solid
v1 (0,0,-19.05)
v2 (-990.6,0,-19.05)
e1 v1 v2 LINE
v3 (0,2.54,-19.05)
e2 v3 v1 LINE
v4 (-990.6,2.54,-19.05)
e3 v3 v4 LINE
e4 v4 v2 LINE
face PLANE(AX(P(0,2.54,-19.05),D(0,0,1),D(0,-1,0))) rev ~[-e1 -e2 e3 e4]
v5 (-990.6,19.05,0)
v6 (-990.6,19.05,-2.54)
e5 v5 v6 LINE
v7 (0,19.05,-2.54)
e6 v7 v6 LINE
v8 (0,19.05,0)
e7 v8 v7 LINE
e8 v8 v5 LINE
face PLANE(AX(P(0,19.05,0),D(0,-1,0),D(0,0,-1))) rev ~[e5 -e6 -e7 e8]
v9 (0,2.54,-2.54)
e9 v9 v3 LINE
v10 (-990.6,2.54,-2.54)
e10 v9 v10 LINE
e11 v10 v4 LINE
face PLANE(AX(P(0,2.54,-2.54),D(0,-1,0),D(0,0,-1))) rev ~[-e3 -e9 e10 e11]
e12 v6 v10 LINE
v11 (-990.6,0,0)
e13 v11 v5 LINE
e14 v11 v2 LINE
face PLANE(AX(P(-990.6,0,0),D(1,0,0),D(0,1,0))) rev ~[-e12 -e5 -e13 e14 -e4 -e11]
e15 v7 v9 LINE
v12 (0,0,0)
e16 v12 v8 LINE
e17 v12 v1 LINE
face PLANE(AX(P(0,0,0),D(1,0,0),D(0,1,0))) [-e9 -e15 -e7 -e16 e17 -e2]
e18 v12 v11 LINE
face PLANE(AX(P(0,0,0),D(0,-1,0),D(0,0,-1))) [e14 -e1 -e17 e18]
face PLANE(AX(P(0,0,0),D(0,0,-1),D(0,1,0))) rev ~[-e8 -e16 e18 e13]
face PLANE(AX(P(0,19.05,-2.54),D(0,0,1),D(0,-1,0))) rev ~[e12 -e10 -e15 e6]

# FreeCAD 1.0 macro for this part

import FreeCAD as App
import Part
import Sketcher
from FreeCAD import Vector
Q = App.Units.Quantity


def add_polygon(sketch, points):
    """Adds a closed chain of lines whose ends are joined by coincident constraints."""
    first, n = sketch.GeometryCount, len(points)
    for a, b in zip(points, points[1:] + points[:1]):
        sketch.addGeometry(Part.LineSegment(App.Vector(*a, 0), App.Vector(*b, 0)), False)
    for i in range(n):
        sketch.addConstraint(Sketcher.Constraint("Coincident", first + i, 2, first + (i + 1) % n, 1))

doc = App.newDocument("Part")
params = doc.addObject("Spreadsheet::Sheet", "Params")
for row, (alias, value) in enumerate([
    ("sketch1_width", "0.1 in"),
    ("sketch1_width2", "0.75 in"),
    ("pad1_length", "39 in"),
], start=1):
    params.set(f"A{row}", alias)
    params.set(f"B{row}", "=" + value)
    params.setAlias(f"B{row}", alias)

body = doc.addObject("PartDesign::Body", "Body")

# Sketch on YZ plane
sketch1 = body.newObject("Sketcher::SketchObject", "Sketch")
sketch1.AttachmentSupport = (doc.getObject("YZ_Plane"), [""])
sketch1.MapMode = "FlatFace"
add_polygon(sketch1, [(19.1, 0), (0, 0), (0, -19.1), (2.5, -19.1), (2.5, -2.5), (19.1, -2.5)])  # lines 0-5
sketch1.addConstraint(Sketcher.Constraint("Horizontal", 0))
sketch1.addConstraint(Sketcher.Constraint("Vertical", 1))
sketch1.addConstraint(Sketcher.Constraint("Horizontal", 2))
sketch1.addConstraint(Sketcher.Constraint("Vertical", 3))
sketch1.addConstraint(Sketcher.Constraint("Horizontal", 4))
sketch1.addConstraint(Sketcher.Constraint("Vertical", 5))
sketch1.addConstraint(Sketcher.Constraint("Coincident", 0, 2, -1, 1))
sketch1.addConstraint(Sketcher.Constraint("Equal", 0, 1))
sketch1.addConstraint(Sketcher.Constraint("Equal", 4, 3))
sketch1.addConstraint(Sketcher.Constraint("DistanceX", 2, 1, 2, 2, Q("0.1 in")))
sketch1.addConstraint(Sketcher.Constraint("DistanceX", 0, 2, 0, 1, Q("0.75 in")))
sketch1.setExpression("Constraints[15]", "Params.sketch1_width")
sketch1.setExpression("Constraints[16]", "Params.sketch1_width2")
pad1 = body.newObject("PartDesign::Pad", "Pad")
pad1.Profile = sketch1
pad1.setExpression("Length", "Params.pad1_length")
pad1.Reversed = True

doc.recompute()
